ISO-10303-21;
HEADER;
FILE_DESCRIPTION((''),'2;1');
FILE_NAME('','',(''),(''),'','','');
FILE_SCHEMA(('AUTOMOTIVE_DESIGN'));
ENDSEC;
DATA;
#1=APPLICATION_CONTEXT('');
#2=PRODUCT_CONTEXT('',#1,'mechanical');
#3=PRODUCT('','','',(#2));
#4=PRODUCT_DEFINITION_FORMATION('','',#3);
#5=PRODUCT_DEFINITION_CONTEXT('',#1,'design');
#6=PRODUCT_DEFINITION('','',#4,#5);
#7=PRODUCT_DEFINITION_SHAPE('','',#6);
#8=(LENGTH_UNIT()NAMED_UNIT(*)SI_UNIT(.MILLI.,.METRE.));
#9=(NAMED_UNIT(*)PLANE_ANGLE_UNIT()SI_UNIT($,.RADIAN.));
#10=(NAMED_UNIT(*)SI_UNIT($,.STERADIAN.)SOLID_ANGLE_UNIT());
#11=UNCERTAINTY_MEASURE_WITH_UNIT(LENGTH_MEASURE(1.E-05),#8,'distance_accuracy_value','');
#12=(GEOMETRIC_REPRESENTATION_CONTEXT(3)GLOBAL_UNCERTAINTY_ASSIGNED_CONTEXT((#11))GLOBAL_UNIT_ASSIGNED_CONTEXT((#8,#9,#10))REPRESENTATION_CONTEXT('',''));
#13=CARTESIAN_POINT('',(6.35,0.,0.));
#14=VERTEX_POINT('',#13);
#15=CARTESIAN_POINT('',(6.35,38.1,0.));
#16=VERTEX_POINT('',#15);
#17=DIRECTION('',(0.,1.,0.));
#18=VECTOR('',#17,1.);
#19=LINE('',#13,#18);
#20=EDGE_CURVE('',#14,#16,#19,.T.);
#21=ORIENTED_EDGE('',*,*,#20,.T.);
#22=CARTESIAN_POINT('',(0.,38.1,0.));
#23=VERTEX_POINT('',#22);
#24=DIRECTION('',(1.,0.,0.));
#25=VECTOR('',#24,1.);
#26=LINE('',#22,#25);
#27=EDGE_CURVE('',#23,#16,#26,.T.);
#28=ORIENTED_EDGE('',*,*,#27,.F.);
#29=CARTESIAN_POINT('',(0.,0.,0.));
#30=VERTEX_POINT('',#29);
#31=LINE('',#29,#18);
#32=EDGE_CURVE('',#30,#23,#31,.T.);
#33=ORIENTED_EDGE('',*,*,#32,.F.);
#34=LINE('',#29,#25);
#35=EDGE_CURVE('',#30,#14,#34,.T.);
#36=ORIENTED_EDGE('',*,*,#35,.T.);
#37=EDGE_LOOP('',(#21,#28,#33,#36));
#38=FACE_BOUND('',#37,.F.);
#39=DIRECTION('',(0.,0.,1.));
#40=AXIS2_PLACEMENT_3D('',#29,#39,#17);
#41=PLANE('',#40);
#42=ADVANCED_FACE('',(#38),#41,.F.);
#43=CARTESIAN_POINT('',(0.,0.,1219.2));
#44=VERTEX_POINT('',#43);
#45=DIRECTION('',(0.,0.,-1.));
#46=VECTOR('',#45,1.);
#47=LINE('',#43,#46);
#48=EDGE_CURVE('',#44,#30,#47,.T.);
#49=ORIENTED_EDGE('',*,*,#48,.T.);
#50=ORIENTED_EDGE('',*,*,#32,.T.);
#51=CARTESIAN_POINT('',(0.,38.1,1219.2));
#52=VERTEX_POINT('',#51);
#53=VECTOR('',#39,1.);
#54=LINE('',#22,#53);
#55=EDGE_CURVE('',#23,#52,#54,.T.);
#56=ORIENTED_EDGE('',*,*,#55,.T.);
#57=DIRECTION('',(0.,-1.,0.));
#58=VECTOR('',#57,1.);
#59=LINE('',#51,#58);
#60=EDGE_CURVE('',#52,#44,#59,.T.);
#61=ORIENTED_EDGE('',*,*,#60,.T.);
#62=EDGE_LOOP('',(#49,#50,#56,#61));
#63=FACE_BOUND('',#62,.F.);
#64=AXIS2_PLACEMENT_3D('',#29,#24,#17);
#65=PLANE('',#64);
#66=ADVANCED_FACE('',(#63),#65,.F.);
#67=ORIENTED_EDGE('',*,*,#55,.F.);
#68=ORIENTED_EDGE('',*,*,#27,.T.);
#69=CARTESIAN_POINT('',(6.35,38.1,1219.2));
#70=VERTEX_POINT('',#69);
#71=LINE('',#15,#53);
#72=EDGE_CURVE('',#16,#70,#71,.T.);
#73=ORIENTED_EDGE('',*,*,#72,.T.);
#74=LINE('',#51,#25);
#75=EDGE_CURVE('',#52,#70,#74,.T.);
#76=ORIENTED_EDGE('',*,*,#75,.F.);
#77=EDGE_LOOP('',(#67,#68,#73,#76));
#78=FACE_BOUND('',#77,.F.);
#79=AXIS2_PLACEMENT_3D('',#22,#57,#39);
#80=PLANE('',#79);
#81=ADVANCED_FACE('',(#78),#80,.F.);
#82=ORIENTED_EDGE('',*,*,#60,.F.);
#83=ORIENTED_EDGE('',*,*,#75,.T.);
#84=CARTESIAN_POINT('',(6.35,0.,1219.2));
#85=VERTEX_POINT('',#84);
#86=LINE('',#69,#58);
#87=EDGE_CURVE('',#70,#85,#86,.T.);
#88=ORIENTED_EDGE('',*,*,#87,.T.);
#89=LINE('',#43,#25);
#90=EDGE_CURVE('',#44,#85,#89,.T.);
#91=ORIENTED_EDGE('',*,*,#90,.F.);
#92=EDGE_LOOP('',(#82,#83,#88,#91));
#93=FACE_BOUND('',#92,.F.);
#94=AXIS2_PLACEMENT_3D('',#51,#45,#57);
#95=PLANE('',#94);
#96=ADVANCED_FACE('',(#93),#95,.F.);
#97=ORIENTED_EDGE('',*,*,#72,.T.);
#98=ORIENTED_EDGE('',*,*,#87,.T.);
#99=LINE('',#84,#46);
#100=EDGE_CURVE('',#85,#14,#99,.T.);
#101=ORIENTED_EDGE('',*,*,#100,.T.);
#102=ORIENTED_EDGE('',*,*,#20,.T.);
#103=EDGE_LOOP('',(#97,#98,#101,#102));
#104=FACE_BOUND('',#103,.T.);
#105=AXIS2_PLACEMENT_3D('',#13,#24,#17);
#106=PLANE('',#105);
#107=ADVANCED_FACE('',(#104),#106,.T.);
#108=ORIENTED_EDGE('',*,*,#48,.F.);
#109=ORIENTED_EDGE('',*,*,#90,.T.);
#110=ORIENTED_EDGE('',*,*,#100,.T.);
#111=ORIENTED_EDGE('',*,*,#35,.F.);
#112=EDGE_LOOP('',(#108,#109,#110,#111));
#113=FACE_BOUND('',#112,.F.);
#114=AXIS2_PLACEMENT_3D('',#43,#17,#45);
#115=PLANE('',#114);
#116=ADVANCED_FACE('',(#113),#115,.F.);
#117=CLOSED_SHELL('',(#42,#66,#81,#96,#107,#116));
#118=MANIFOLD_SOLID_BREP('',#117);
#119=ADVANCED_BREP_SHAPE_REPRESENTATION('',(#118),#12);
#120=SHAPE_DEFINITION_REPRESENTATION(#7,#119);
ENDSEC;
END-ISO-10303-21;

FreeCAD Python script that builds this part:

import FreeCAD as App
import Part
import Sketcher
Q = App.Units.Quantity

doc = App.newDocument("Part")
body = doc.addObject("PartDesign::Body", "Body")

sketch1 = body.newObject("Sketcher::SketchObject", "Sketch")
sketch1.AttachmentSupport = (doc.getObject("YZ_Plane"), [""])
sketch1.MapMode = "FlatFace"
sketch1.addGeometry([
    Part.LineSegment(App.Vector(0, 1219.2, 0), App.Vector(0, 0, 0)),
    Part.LineSegment(App.Vector(0, 0, 0), App.Vector(38.1, 0, 0)),
    Part.LineSegment(App.Vector(38.1, 0, 0), App.Vector(38.1, 1219.2, 0)),
    Part.LineSegment(App.Vector(38.1, 1219.2, 0), App.Vector(0, 1219.2, 0)),
], False)
sketch1.addConstraint([
    Sketcher.Constraint("Coincident", 0, 2, 1, 1),
    Sketcher.Constraint("Coincident", 1, 2, 2, 1),
    Sketcher.Constraint("Coincident", 2, 2, 3, 1),
    Sketcher.Constraint("Coincident", 3, 2, 0, 1),
    Sketcher.Constraint("Vertical", 0),
    Sketcher.Constraint("Horizontal", 1),
    Sketcher.Constraint("Vertical", 2),
    Sketcher.Constraint("Horizontal", 3),
    Sketcher.Constraint("Coincident", 0, 2, -1, 1),
    Sketcher.Constraint("DistanceY", 0, 2, 0, 1, Q("48 in")),
    Sketcher.Constraint("DistanceX", 1, 1, 1, 2, Q("1.5 in")),
])
pad1 = body.newObject("PartDesign::Pad", "Pad")
pad1.Profile = sketch1
pad1.Length = Q("0.25 in")

doc.recompute()
